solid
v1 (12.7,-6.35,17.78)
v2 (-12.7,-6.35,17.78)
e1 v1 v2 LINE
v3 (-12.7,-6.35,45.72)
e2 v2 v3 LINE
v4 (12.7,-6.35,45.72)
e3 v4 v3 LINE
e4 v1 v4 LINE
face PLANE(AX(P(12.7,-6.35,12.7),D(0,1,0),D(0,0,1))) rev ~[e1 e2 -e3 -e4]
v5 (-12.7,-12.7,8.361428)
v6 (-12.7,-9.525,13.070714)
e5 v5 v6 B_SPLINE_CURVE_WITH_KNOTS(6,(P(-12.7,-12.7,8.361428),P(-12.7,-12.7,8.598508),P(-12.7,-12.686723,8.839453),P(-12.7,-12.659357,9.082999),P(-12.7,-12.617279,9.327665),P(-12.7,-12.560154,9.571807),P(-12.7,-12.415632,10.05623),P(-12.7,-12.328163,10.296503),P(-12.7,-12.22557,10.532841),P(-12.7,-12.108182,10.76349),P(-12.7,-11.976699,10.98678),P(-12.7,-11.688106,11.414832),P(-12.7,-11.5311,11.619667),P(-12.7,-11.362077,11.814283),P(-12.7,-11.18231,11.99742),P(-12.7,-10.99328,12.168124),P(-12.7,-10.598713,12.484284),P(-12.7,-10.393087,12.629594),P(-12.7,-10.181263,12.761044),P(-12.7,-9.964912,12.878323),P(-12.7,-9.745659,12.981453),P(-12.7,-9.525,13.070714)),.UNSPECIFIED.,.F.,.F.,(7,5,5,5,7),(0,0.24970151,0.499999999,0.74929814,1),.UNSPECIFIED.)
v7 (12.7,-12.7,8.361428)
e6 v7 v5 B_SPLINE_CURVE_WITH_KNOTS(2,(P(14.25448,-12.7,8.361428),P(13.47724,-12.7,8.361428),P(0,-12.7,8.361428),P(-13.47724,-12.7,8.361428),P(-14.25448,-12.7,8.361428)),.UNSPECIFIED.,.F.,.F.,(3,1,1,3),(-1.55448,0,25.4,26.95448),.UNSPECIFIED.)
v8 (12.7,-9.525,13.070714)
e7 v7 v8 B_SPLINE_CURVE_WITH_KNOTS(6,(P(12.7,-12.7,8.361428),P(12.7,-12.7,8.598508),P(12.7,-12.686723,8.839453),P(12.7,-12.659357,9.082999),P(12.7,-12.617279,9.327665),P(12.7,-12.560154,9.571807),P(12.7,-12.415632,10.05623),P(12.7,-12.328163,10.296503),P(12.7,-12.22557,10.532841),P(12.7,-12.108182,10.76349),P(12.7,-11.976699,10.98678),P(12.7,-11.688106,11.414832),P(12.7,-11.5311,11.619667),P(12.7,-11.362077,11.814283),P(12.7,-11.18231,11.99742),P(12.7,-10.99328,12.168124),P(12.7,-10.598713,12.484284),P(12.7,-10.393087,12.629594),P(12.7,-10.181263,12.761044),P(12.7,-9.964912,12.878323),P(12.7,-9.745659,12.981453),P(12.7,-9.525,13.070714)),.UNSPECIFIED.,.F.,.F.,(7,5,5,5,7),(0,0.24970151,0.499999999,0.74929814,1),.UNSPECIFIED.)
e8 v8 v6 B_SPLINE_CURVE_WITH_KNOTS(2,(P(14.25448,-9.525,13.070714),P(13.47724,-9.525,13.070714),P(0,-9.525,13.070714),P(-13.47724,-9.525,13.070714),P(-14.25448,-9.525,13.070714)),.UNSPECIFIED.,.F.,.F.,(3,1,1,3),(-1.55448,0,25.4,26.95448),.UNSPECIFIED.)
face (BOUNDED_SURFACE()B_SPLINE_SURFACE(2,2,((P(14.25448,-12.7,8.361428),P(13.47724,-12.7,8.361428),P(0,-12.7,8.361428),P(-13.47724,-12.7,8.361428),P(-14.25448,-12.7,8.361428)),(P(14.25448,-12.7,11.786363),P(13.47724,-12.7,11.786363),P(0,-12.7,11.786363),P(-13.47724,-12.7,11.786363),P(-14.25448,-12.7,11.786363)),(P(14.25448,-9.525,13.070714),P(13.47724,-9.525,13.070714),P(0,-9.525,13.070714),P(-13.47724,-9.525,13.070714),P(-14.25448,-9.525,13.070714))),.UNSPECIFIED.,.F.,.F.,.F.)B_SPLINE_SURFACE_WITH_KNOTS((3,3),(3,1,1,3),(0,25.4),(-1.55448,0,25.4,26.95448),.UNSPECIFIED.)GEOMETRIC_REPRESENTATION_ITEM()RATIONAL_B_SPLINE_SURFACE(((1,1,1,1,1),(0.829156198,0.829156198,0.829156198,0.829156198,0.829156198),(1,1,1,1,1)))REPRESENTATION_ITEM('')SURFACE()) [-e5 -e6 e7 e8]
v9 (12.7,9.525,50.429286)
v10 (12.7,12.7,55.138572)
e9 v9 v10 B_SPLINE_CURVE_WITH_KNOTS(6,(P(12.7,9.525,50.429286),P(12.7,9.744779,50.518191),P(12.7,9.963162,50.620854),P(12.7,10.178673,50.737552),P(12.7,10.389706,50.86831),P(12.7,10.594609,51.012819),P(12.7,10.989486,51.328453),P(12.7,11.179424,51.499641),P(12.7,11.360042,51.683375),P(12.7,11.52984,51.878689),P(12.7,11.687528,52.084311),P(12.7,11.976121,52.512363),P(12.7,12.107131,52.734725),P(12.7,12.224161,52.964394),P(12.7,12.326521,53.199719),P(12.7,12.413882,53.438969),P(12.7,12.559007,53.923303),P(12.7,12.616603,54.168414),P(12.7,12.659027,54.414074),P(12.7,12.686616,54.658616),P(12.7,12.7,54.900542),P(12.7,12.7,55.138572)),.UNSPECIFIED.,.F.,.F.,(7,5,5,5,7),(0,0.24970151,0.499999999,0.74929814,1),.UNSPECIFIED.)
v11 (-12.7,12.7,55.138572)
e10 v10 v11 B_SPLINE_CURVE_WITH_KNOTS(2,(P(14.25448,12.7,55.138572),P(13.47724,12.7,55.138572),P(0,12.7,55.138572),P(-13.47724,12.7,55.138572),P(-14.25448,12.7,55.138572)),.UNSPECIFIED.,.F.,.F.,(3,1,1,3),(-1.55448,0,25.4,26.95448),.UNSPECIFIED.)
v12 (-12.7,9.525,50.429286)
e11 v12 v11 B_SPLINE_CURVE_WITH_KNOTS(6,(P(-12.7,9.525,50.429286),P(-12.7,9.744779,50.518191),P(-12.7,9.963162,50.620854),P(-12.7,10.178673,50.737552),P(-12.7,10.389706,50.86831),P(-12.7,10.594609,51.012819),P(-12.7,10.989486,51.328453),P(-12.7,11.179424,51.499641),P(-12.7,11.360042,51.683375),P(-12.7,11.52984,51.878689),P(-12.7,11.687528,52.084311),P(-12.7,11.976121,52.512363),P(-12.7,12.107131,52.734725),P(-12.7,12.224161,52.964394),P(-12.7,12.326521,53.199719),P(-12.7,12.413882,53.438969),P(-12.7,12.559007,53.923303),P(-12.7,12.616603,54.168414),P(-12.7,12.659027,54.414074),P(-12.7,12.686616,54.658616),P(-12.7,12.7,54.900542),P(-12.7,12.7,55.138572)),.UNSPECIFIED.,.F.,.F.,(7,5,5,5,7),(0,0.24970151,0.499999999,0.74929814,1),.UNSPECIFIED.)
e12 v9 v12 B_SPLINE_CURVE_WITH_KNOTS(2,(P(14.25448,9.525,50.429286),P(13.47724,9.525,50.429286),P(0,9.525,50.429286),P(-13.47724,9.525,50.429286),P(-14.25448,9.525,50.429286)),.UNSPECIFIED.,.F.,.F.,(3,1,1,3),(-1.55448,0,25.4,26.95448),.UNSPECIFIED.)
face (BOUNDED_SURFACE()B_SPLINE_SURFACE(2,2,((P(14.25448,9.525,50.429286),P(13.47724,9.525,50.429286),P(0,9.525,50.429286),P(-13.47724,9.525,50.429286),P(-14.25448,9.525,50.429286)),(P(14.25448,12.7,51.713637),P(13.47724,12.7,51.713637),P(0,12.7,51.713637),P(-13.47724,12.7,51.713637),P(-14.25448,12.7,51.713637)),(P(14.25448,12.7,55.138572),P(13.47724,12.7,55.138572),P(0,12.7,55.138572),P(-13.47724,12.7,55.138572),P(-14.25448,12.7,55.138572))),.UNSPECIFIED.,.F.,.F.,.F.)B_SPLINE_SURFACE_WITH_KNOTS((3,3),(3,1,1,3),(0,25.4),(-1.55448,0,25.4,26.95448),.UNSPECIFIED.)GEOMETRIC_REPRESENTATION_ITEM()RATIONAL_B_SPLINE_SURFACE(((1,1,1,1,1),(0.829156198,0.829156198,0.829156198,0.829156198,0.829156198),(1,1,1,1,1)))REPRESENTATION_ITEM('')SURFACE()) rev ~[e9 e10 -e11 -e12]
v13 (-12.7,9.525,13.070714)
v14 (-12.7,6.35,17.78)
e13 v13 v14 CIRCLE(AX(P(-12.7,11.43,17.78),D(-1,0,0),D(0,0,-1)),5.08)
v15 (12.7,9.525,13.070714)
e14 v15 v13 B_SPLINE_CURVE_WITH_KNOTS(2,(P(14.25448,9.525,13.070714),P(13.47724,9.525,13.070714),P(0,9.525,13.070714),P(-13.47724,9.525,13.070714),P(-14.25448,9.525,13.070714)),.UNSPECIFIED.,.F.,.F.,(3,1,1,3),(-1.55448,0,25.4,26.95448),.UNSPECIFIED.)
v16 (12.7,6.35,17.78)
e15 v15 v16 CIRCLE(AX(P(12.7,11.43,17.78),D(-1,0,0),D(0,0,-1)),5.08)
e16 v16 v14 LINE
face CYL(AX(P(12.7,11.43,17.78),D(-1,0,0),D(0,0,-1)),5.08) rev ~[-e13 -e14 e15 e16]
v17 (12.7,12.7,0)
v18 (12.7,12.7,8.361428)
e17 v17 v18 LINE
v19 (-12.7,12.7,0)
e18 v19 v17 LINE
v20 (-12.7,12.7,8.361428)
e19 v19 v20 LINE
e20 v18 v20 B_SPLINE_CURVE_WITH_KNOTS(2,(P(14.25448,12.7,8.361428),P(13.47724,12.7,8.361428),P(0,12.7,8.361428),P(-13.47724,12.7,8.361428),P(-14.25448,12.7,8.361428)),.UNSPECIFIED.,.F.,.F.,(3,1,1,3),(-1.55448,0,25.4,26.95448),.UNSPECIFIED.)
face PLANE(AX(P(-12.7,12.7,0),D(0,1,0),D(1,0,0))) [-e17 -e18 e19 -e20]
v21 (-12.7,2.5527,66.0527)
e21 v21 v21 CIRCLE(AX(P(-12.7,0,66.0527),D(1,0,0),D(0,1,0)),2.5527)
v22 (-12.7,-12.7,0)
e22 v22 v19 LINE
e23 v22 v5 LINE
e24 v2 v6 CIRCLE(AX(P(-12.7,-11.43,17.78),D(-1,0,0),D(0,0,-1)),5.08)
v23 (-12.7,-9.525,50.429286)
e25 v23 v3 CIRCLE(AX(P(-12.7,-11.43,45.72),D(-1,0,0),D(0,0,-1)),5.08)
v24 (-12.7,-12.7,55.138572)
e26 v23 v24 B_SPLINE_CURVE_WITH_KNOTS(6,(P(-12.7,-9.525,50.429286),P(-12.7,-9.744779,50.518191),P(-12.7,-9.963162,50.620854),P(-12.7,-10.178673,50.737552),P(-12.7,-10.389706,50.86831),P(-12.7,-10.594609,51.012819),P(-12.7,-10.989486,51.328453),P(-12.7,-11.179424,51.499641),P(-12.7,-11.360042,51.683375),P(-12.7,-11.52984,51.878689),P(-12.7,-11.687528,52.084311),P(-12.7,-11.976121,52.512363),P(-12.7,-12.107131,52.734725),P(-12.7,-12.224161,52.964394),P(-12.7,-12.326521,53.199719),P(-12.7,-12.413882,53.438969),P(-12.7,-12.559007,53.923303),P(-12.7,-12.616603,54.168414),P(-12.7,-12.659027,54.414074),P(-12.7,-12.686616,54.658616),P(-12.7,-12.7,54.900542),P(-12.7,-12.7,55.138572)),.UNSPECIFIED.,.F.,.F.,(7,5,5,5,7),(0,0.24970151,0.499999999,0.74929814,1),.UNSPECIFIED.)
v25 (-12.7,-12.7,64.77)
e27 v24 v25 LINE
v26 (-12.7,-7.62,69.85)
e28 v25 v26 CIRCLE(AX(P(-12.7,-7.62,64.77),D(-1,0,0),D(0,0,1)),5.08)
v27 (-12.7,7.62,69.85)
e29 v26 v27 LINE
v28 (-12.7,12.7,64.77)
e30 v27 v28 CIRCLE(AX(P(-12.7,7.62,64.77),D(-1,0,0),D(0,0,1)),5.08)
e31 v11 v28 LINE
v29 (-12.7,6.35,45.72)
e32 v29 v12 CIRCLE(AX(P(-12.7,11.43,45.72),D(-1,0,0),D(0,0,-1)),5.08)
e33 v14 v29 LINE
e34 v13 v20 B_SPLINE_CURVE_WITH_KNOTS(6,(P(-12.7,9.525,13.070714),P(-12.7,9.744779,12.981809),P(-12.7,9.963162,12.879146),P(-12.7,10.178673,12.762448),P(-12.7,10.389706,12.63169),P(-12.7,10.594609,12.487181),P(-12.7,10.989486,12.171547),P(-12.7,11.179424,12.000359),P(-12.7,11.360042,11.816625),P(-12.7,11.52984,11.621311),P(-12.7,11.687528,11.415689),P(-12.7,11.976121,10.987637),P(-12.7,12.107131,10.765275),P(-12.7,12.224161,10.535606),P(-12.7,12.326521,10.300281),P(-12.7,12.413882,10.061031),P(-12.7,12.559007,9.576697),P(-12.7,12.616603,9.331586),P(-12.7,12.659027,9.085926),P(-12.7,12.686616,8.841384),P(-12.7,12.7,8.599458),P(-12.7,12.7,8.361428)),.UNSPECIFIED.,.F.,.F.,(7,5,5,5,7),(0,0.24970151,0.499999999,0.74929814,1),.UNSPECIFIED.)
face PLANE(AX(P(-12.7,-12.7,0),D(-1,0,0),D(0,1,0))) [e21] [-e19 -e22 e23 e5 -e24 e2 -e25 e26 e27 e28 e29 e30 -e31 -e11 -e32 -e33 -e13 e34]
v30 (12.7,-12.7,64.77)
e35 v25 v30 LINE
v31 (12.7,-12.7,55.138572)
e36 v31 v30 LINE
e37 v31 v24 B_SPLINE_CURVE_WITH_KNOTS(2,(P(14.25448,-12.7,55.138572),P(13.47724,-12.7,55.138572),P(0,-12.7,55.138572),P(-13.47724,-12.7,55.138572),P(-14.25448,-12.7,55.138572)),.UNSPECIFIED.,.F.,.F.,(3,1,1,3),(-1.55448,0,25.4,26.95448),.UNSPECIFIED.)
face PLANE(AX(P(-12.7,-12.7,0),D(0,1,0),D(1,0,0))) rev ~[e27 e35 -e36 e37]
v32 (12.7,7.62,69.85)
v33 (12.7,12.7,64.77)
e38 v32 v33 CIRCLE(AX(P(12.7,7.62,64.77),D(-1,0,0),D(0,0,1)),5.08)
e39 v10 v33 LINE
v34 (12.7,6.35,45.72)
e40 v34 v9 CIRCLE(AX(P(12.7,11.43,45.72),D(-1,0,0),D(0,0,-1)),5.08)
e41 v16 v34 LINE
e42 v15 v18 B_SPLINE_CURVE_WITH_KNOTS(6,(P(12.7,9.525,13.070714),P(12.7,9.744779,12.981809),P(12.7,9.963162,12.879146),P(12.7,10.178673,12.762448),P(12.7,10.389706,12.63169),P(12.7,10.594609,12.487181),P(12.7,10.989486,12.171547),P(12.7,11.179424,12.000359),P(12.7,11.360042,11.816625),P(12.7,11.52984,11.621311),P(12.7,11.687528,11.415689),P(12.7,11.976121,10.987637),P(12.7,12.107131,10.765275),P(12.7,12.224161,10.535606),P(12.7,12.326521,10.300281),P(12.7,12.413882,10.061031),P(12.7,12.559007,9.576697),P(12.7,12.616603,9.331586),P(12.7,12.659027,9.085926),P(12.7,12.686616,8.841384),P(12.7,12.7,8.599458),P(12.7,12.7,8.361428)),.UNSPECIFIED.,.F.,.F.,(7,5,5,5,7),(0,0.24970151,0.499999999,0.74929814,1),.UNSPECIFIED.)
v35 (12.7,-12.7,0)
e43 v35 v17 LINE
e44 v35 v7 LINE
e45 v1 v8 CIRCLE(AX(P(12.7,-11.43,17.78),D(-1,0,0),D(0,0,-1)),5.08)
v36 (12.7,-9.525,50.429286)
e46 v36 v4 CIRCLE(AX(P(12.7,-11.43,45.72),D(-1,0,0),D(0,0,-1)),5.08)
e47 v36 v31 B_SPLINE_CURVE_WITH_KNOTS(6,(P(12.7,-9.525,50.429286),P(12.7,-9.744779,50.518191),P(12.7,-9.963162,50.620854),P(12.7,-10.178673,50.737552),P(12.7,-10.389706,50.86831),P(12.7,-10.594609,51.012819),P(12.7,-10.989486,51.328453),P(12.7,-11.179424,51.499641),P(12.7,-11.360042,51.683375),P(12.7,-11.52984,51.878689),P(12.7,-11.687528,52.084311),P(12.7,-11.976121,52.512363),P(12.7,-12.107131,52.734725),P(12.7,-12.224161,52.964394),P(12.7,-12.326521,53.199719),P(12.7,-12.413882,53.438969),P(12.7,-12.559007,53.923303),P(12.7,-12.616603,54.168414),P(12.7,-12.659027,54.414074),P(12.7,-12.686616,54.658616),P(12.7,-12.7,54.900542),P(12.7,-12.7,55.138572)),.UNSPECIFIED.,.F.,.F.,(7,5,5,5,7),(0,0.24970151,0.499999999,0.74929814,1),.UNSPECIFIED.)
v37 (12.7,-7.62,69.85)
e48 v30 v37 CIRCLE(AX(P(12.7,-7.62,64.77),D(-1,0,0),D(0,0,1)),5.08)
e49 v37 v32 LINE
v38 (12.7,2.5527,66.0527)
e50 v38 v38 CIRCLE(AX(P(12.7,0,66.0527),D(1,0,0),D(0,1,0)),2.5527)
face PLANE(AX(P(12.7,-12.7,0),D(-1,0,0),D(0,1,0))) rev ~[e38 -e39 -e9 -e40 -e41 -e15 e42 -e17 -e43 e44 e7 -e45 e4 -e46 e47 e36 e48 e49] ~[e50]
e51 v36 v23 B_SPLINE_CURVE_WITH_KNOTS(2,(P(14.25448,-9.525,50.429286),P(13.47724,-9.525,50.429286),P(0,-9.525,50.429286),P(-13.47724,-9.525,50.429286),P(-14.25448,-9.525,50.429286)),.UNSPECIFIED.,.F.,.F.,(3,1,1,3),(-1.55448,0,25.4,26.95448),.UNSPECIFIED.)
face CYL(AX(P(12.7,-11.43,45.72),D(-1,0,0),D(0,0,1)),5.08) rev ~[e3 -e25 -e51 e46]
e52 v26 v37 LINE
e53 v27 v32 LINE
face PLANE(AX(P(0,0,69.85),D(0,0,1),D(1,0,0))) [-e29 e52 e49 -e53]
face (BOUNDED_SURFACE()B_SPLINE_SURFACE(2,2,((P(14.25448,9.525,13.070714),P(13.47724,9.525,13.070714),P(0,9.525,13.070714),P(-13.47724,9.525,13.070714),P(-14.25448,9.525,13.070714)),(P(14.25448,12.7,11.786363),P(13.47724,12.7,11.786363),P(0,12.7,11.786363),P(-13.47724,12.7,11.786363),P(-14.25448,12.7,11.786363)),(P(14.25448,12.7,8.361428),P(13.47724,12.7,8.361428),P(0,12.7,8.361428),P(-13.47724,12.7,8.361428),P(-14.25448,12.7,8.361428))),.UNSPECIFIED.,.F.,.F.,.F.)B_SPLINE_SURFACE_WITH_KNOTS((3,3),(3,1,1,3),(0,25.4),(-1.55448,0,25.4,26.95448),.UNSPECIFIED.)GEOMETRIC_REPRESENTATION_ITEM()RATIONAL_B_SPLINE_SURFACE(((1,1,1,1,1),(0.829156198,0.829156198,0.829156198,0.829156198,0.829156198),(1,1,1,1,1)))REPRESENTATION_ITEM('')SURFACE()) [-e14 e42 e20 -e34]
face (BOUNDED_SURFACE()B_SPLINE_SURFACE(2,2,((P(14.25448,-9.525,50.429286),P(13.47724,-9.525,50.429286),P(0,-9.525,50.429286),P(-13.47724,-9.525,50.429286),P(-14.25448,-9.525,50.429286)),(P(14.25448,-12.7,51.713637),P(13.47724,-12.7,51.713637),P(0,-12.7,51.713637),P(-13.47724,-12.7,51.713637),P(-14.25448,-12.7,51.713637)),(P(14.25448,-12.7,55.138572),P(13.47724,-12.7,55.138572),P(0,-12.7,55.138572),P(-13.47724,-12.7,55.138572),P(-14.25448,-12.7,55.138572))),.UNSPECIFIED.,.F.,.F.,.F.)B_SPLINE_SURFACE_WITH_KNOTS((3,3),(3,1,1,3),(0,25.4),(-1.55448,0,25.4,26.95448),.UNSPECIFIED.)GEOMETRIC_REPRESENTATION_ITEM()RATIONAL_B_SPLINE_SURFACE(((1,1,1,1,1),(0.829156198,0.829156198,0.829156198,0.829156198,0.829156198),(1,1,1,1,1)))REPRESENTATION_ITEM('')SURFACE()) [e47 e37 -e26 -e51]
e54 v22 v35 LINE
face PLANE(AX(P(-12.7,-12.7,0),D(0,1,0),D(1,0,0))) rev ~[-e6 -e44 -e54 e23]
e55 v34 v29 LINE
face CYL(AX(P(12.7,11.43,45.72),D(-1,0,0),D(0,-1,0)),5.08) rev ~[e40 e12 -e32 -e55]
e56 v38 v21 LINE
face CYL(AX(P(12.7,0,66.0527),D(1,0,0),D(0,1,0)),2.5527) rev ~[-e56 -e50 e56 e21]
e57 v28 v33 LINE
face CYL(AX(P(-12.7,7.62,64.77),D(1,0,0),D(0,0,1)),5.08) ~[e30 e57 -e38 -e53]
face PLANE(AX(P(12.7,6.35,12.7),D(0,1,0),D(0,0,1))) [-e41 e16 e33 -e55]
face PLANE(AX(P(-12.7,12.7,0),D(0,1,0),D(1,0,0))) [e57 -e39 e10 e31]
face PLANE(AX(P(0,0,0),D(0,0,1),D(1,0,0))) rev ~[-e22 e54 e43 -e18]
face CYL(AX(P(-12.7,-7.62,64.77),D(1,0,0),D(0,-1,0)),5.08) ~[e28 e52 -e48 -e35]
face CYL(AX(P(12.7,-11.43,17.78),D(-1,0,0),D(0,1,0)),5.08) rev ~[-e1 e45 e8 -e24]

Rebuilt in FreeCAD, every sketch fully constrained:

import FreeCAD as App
import Part
import Sketcher
from FreeCAD import Vector
Q = App.Units.Quantity


def edges_at(feature, points):
    """Names of the edges that pass closest to the given points."""
    edges = feature.Shape.Edges
    near = lambda p: min(range(len(edges)), key=lambda i: edges[i].distToShape(Part.Vertex(*p))[0])
    return sorted({f"Edge{near(p) + 1}" for p in points})

doc = App.newDocument("Part")
body = doc.addObject("PartDesign::Body", "Body")

# Sketch on XY plane
sketch1 = body.newObject("Sketcher::SketchObject", "Sketch")
sketch1.AttachmentSupport = (doc.getObject("XY_Plane"), [""])
sketch1.MapMode = "FlatFace"
sketch1.addGeometry([
    Part.LineSegment(Vector(-13, 13, 0), Vector(-13, -13, 0)),
    Part.LineSegment(Vector(-13, -13, 0), Vector(13, -13, 0)),
    Part.LineSegment(Vector(13, -13, 0), Vector(13, 13, 0)),
    Part.LineSegment(Vector(13, 13, 0), Vector(-13, 13, 0)),
], False)
sketch1.addConstraint([
    Sketcher.Constraint("Coincident", 0, 2, 1, 1),
    Sketcher.Constraint("Coincident", 1, 2, 2, 1),
    Sketcher.Constraint("Coincident", 2, 2, 3, 1),
    Sketcher.Constraint("Coincident", 3, 2, 0, 1),
    Sketcher.Constraint("Vertical", 0),
    Sketcher.Constraint("Horizontal", 1),
    Sketcher.Constraint("Vertical", 2),
    Sketcher.Constraint("Horizontal", 3),
    Sketcher.Constraint("Symmetric", 0, 2, 2, 2, -1, 1),
    Sketcher.Constraint("Equal", 3, 0),
    Sketcher.Constraint("DistanceX", 1, 1, 1, 2, Q("1 in")),
])
pad1 = body.newObject("PartDesign::Pad", "Pad")
pad1.Profile = sketch1
pad1.Length = Q("2.75 in")

# Sketch on YZ plane
sketch2 = body.newObject("Sketcher::SketchObject", "Sketch001")
sketch2.AttachmentSupport = (doc.getObject("YZ_Plane"), [""])
sketch2.MapMode = "FlatFace"
sketch2.AttachmentOffset = App.Placement(Vector(0, 0, 0.5 * 25.4), App.Rotation())
sketch2.addGeometry(Part.Circle(Vector(0, 66.1, 0), Vector(0, 0, 1), 2.6), False)
sketch2.addConstraint([
    Sketcher.Constraint("PointOnObject", 0, 3, -2),
    Sketcher.Constraint("Diameter", 0, Q("0.201 in")),
    Sketcher.Constraint("DistanceY", -1, 1, 0, 3, Q("2.6005 in")),
])
pocket1 = body.newObject("PartDesign::Pocket", "Pocket")
pocket1.Profile = sketch2
pocket1.Length = Q("1 in")
doc.recompute()

fillet = body.newObject("PartDesign::Fillet", "Fillet")
fillet.Base = (pocket1, edges_at(pocket1, [(0, -12.7, 69.85), (0, 12.7, 69.85)]))
fillet.Radius = Q("0.2 in")

# Sketch on YZ plane
sketch3 = body.newObject("Sketcher::SketchObject", "Sketch002")
sketch3.AttachmentSupport = (doc.getObject("YZ_Plane"), [""])
sketch3.MapMode = "FlatFace"
sketch3.AttachmentOffset = App.Placement(Vector(0, 0, 0.5 * 25.4), App.Rotation())
sketch3.addGeometry([
    Part.LineSegment(Vector(-13, 51, 0), Vector(-13, 13, 0)),  # 0
    Part.LineSegment(Vector(-13, 13, 0), Vector(-6, 13, 0)),  # 1
    Part.LineSegment(Vector(-6, 13, 0), Vector(-6, 51, 0)),  # 2
    Part.LineSegment(Vector(-6, 51, 0), Vector(-13, 51, 0)),  # 3
    Part.LineSegment(Vector(6, 51, 0), Vector(6, 13, 0)),  # 4
    Part.LineSegment(Vector(6, 13, 0), Vector(13, 13, 0)),  # 5
    Part.LineSegment(Vector(13, 13, 0), Vector(13, 51, 0)),  # 6
    Part.LineSegment(Vector(13, 51, 0), Vector(6, 51, 0)),  # 7
], False)
sketch3.addConstraint([
    Sketcher.Constraint("Coincident", 0, 2, 1, 1),
    Sketcher.Constraint("Coincident", 1, 2, 2, 1),
    Sketcher.Constraint("Coincident", 2, 2, 3, 1),
    Sketcher.Constraint("Coincident", 3, 2, 0, 1),
    Sketcher.Constraint("Coincident", 4, 2, 5, 1),
    Sketcher.Constraint("Coincident", 5, 2, 6, 1),
    Sketcher.Constraint("Coincident", 6, 2, 7, 1),
    Sketcher.Constraint("Coincident", 7, 2, 4, 1),
    Sketcher.Constraint("Vertical", 0),
    Sketcher.Constraint("Horizontal", 1),
    Sketcher.Constraint("Vertical", 2),
    Sketcher.Constraint("Horizontal", 3),
    Sketcher.Constraint("Vertical", 4),
    Sketcher.Constraint("Horizontal", 5),
    Sketcher.Constraint("Vertical", 6),
    Sketcher.Constraint("Horizontal", 7),
    Sketcher.Constraint("Symmetric", 1, 2, 4, 2, -2),
    Sketcher.Constraint("Symmetric", 3, 2, 6, 2, -2),
    Sketcher.Constraint("DistanceY", 0, 2, 0, 1, Q("1.5 in")),
    Sketcher.Constraint("DistanceY", -1, 1, 2, 2, Q("2 in")),
    Sketcher.Constraint("DistanceX", 0, 2, 5, 2, Q("1 in")),
    Sketcher.Constraint("DistanceX", 1, 1, 1, 2, Q("0.25 in")),
])
pocket2 = body.newObject("PartDesign::Pocket", "Pocket001")
pocket2.Profile = sketch3
pocket2.Length = Q("1 in")
doc.recompute()

fillet2 = body.newObject("PartDesign::Fillet", "Fillet001")
fillet2.Base = (pocket2, edges_at(pocket2, [
    (0, 6.35, 50.8),
    (0, 6.35, 12.7),
    (0, -6.35, 50.8),
    (0, -6.35, 12.7),
]))
fillet2.Radius = Q("0.2 in")
doc.recompute()

fillet3 = body.newObject("PartDesign::Fillet", "Fillet002")
fillet3.Base = (fillet2, edges_at(fillet2, [
    (0, -12.7, 12.7),
    (0, -12.7, 50.8),
    (0, 12.7, 12.7),
    (0, 12.7, 50.8),
]))
fillet3.Radius = Q("0.2 in")

doc.recompute()
